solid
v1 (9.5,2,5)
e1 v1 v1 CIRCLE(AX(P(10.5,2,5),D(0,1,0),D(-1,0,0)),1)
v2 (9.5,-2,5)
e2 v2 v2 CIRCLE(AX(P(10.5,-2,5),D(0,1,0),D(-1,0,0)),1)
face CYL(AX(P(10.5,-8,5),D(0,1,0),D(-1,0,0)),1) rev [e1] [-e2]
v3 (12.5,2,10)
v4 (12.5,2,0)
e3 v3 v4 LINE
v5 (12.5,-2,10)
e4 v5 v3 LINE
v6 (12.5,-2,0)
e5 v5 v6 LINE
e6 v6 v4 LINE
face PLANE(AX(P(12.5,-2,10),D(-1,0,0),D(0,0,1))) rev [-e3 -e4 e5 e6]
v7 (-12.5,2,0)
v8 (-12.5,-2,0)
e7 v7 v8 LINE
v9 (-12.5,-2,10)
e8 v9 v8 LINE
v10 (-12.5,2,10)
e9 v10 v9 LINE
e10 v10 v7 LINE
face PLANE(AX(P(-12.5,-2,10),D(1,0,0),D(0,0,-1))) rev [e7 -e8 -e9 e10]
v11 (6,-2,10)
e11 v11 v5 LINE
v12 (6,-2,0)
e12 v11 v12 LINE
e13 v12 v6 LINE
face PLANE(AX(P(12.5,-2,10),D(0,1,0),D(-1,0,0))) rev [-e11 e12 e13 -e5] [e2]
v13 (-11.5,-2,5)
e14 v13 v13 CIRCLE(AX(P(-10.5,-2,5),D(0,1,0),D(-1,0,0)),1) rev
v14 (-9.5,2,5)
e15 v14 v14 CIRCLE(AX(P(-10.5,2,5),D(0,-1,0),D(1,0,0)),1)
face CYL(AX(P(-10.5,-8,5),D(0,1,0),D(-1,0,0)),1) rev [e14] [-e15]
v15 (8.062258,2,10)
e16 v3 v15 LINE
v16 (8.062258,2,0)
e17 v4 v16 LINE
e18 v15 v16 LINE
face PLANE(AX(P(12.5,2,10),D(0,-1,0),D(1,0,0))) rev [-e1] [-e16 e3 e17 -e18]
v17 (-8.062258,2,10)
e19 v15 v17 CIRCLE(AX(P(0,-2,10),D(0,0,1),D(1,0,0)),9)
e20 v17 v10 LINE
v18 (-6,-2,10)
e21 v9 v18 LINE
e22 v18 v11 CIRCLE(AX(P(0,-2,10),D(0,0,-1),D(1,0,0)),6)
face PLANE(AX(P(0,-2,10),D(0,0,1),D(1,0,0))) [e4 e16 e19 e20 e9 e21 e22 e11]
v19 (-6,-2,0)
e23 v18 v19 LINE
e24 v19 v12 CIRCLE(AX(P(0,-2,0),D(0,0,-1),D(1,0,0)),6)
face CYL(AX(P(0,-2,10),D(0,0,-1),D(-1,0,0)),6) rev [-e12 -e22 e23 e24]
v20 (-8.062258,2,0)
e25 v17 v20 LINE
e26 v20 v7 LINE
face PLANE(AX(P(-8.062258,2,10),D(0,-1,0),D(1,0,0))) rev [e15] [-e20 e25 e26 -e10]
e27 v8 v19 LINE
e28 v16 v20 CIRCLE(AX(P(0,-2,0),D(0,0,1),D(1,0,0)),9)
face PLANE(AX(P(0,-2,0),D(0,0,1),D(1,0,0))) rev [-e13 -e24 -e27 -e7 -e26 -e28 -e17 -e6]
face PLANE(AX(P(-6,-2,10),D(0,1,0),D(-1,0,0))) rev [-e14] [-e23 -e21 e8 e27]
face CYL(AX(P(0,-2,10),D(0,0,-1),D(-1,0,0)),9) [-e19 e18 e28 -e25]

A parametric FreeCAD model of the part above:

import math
import FreeCAD as App
import Part
import Sketcher
Q = App.Units.Quantity

doc = App.newDocument("Part")
params = doc.addObject("Spreadsheet::Sheet", "Params")
for row, (alias, value) in enumerate([
    ("sketch1_radius", "9 mm"),
    ("sketch1_radius2", "6 mm"),
    ("sketch1_height", "4 mm"),
    ("sketch1_width", "6.5 mm"),
    ("pad1_length", "10 mm"),
    ("sketch2_diameter", "2 mm"),
    ("pocket1_length", "10 mm"),
], start=1):
    params.set(f"A{row}", alias)
    params.set(f"B{row}", "=" + value)
    params.setAlias(f"B{row}", alias)

body = doc.addObject("PartDesign::Body", "Body")

# Sketch on XY plane
sketch1 = body.newObject("Sketcher::SketchObject", "Sketch")
sketch1.AttachmentSupport = (doc.getObject("XY_Plane"), [""])
sketch1.MapMode = "FlatFace"
sketch1.addGeometry([
    Part.LineSegment(App.Vector(6, -2, 0), App.Vector(12.5, -2, 0)),  # 0
    Part.LineSegment(App.Vector(12.5, -2, 0), App.Vector(12.5, 2, 0)),  # 1
    Part.LineSegment(App.Vector(12.5, 2, 0), App.Vector(8.062258, 2, 0)),  # 2
    Part.ArcOfCircle(Part.Circle(App.Vector(0, -2, 0), App.Vector(0, 0, 1), 9), math.radians(26.3878), math.radians(153.6122)),  # 3
    Part.LineSegment(App.Vector(-8.062258, 2, 0), App.Vector(-12.5, 2, 0)),  # 4
    Part.LineSegment(App.Vector(-12.5, 2, 0), App.Vector(-12.5, -2, 0)),  # 5
    Part.LineSegment(App.Vector(-12.5, -2, 0), App.Vector(-6, -2, 0)),  # 6
    Part.ArcOfCircle(Part.Circle(App.Vector(0, -2, 0), App.Vector(0, 0, 1), 6), math.radians(0), math.radians(180)),  # 7
], False)
sketch1.addConstraint([
    Sketcher.Constraint("Coincident", 0, 2, 1, 1),
    Sketcher.Constraint("Coincident", 1, 2, 2, 1),
    Sketcher.Constraint("Coincident", 2, 2, 3, 1),
    Sketcher.Constraint("Coincident", 3, 2, 4, 1),
    Sketcher.Constraint("Coincident", 4, 2, 5, 1),
    Sketcher.Constraint("Coincident", 5, 2, 6, 1),
    Sketcher.Constraint("Coincident", 6, 2, 7, 2),
    Sketcher.Constraint("Coincident", 7, 1, 0, 1),
    Sketcher.Constraint("Horizontal", 0),
    Sketcher.Constraint("Vertical", 1),
    Sketcher.Constraint("Horizontal", 2),
    Sketcher.Constraint("Horizontal", 4),
    Sketcher.Constraint("Vertical", 5),
    Sketcher.Constraint("Horizontal", 6),
    Sketcher.Constraint("Coincident", 7, 3, 3, 3),
    Sketcher.Constraint("Symmetric", 0, 2, 4, 2, -1, 1),
    Sketcher.Constraint("Symmetric", 2, 2, 3, 2, -2),
    Sketcher.Constraint("Horizontal", 7, 3, 0, 2),
    Sketcher.Constraint("Horizontal", 0, 2, 5, 2),
    Sketcher.Constraint("Radius", 3, Q("9 mm")),
    Sketcher.Constraint("Radius", 7, Q("6 mm")),
    Sketcher.Constraint("DistanceY", 1, 1, 1, 2, Q("4 mm")),
    Sketcher.Constraint("DistanceX", 0, 1, 0, 2, Q("6.5 mm")),
])
sketch1.setExpression("Constraints[19]", "Params.sketch1_radius")
sketch1.setExpression("Constraints[20]", "Params.sketch1_radius2")
sketch1.setExpression("Constraints[21]", "Params.sketch1_height")
sketch1.setExpression("Constraints[22]", "Params.sketch1_width")
pad1 = body.newObject("PartDesign::Pad", "Pad")
pad1.Profile = sketch1
pad1.setExpression("Length", "Params.pad1_length")

# Sketch on XZ plane
sketch2 = body.newObject("Sketcher::SketchObject", "Sketch001")
sketch2.AttachmentSupport = (doc.getObject("XZ_Plane"), [""])
sketch2.MapMode = "FlatFace"
sketch2.AttachmentOffset = App.Placement(App.Vector(0, 0, -2), App.Rotation())
sketch2.addGeometry(Part.Circle(App.Vector(10.5, 5, 0), App.Vector(0, 0, 1), 1), False)
sketch2.addConstraint([
    Sketcher.Constraint("Diameter", 0, Q("2 mm")),
    Sketcher.Constraint("DistanceY", -1, 1, 0, 3, Q("5 mm")),
    Sketcher.Constraint("DistanceX", -1, 1, 0, 3, Q("10.5 mm")),
])
sketch2.setExpression("Constraints[0]", "Params.sketch2_diameter")
pocket1 = body.newObject("PartDesign::Pocket", "Pocket")
pocket1.Profile = sketch2
pocket1.setExpression("Length", "Params.pocket1_length")
pocket1.Reversed = True
doc.recompute()

mirrored = body.newObject("PartDesign::Mirrored", "Mirrored")
mirrored.Originals = [pocket1]
mirrored.MirrorPlane = (doc.getObject("YZ_Plane"), [""])
body.Tip = mirrored

doc.recompute()
